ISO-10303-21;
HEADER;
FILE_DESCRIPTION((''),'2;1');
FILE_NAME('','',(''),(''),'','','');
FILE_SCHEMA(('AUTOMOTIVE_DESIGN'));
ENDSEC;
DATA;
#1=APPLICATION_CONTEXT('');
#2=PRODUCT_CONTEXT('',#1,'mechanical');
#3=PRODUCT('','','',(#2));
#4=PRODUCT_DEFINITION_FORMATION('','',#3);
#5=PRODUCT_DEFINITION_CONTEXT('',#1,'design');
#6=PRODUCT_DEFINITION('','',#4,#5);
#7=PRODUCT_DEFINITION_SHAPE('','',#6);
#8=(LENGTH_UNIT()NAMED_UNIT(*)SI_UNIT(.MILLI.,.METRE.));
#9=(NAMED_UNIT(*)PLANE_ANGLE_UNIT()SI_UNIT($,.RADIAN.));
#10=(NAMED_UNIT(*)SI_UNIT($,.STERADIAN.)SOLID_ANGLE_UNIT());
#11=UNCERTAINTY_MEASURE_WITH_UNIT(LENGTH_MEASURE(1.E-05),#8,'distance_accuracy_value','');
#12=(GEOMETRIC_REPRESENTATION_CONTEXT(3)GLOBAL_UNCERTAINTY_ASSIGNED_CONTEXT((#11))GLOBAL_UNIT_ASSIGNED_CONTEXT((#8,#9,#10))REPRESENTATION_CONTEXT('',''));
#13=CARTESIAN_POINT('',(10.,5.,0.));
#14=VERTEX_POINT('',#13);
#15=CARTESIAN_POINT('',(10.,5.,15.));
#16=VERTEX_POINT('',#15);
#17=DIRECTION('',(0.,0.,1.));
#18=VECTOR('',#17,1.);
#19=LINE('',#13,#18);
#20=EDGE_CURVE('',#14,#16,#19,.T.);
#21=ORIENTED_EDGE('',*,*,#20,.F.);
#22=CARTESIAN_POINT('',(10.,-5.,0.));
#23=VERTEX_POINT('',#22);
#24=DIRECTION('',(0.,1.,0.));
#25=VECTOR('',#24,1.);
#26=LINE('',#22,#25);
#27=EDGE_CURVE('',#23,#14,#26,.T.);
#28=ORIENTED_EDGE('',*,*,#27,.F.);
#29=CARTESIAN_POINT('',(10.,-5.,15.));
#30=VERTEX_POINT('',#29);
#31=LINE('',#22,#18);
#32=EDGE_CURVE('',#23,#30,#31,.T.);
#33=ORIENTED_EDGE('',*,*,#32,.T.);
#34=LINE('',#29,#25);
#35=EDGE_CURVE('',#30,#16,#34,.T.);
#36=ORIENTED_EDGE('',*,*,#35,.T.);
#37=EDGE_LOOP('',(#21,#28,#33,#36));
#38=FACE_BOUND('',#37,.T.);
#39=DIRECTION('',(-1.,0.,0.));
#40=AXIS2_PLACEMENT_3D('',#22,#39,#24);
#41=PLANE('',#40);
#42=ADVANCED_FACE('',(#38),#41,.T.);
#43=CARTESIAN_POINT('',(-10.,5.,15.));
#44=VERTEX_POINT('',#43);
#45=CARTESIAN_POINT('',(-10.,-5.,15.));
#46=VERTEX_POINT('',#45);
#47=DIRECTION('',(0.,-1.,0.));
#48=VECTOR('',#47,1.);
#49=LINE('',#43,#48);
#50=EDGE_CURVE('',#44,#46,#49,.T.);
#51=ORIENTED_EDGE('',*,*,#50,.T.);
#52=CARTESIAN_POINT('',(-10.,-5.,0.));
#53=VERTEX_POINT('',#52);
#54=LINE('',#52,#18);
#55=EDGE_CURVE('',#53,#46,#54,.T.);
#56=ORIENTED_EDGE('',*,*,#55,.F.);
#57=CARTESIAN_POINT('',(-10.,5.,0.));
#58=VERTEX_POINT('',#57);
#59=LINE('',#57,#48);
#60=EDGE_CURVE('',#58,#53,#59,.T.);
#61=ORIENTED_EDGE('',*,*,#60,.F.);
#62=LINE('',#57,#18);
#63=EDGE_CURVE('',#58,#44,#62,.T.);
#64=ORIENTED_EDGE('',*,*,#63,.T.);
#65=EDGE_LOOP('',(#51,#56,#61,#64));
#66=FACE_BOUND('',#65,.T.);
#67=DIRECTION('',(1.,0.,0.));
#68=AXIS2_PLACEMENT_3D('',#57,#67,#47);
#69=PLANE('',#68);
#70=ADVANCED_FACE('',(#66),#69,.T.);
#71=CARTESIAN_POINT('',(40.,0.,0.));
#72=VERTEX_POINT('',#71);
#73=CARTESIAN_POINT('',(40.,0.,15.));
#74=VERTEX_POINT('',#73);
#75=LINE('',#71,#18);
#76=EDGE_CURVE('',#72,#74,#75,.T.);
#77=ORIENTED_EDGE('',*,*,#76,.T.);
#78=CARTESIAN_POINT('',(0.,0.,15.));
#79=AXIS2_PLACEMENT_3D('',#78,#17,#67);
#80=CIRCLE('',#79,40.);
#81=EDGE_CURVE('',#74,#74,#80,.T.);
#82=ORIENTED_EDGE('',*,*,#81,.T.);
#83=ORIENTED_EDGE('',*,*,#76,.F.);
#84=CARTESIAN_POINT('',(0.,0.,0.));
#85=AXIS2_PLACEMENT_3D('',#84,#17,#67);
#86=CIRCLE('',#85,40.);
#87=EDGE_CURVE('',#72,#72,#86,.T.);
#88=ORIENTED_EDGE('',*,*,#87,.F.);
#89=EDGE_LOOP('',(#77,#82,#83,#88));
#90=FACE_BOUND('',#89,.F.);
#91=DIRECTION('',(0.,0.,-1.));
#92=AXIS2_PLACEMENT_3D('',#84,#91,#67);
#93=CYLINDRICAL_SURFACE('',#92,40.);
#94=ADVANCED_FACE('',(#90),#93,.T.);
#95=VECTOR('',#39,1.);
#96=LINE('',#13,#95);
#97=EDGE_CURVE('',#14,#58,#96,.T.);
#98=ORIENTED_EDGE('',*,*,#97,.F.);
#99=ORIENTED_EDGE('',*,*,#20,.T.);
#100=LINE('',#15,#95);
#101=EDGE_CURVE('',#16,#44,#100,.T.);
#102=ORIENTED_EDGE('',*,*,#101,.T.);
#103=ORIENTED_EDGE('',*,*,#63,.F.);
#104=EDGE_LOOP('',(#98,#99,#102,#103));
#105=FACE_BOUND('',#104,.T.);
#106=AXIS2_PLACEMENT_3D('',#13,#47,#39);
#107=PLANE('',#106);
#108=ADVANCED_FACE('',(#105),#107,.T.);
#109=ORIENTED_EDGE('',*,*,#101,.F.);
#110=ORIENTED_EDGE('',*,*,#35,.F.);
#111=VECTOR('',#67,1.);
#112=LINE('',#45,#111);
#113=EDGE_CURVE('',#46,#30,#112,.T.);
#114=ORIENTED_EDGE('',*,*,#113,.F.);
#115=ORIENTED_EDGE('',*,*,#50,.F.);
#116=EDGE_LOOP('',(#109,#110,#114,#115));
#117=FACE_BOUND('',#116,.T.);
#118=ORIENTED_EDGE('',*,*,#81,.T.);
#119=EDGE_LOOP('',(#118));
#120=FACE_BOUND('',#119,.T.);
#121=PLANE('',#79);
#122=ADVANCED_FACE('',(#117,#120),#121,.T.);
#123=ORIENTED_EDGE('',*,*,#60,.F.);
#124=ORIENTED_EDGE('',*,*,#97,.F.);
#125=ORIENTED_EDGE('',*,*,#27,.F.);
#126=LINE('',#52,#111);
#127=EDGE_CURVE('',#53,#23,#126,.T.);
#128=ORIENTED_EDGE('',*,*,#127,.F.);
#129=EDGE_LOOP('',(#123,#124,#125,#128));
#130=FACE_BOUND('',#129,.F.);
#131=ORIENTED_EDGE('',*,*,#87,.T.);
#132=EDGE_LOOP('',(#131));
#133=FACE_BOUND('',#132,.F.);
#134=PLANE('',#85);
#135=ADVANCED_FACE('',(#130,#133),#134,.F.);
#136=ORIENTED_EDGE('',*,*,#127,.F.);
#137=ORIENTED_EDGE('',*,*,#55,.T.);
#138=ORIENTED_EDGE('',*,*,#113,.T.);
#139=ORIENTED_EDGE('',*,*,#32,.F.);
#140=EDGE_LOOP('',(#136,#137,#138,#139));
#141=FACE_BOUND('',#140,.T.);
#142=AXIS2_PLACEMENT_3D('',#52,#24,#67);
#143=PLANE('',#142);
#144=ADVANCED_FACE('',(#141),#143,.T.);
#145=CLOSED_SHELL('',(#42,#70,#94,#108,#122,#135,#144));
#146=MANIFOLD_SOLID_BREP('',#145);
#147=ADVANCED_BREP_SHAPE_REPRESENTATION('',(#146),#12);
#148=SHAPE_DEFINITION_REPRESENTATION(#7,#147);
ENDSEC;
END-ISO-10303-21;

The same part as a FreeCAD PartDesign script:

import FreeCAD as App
import Part
import Sketcher
from FreeCAD import Vector
Q = App.Units.Quantity


def add_polygon(sketch, points):
    """Adds a closed chain of lines whose ends are joined by coincident constraints."""
    first, n = sketch.GeometryCount, len(points)
    for a, b in zip(points, points[1:] + points[:1]):
        sketch.addGeometry(Part.LineSegment(App.Vector(*a, 0), App.Vector(*b, 0)), False)
    for i in range(n):
        sketch.addConstraint(Sketcher.Constraint("Coincident", first + i, 2, first + (i + 1) % n, 1))

doc = App.newDocument("Part")
body = doc.addObject("PartDesign::Body", "Body")

sketch1 = body.newObject("Sketcher::SketchObject", "Sketch")
sketch1.AttachmentSupport = (doc.getObject("XY_Plane"), [""])
sketch1.MapMode = "FlatFace"
sketch1.addGeometry(Part.Circle(Vector(0, 0, 0), Vector(0, 0, 1), 40), False)
add_polygon(sketch1, [(10, -5), (-10, -5), (-10, 5), (10, 5)])
sketch1.addConstraint([
    Sketcher.Constraint("Horizontal", 1),
    Sketcher.Constraint("Vertical", 2),
    Sketcher.Constraint("Horizontal", 3),
    Sketcher.Constraint("Vertical", 4),
    Sketcher.Constraint("Coincident", 0, 3, -1, 1),
    Sketcher.Constraint("Symmetric", 1, 2, 3, 2, -1, 1),
    Sketcher.Constraint("Diameter", 0, Q("80 mm")),
    Sketcher.Constraint("DistanceX", 1, 2, 1, 1, Q("20 mm")),
    Sketcher.Constraint("DistanceY", 2, 1, 2, 2, Q("10 mm")),
])
pad1 = body.newObject("PartDesign::Pad", "Pad")
pad1.Profile = sketch1
pad1.Length = 15

doc.recompute()
